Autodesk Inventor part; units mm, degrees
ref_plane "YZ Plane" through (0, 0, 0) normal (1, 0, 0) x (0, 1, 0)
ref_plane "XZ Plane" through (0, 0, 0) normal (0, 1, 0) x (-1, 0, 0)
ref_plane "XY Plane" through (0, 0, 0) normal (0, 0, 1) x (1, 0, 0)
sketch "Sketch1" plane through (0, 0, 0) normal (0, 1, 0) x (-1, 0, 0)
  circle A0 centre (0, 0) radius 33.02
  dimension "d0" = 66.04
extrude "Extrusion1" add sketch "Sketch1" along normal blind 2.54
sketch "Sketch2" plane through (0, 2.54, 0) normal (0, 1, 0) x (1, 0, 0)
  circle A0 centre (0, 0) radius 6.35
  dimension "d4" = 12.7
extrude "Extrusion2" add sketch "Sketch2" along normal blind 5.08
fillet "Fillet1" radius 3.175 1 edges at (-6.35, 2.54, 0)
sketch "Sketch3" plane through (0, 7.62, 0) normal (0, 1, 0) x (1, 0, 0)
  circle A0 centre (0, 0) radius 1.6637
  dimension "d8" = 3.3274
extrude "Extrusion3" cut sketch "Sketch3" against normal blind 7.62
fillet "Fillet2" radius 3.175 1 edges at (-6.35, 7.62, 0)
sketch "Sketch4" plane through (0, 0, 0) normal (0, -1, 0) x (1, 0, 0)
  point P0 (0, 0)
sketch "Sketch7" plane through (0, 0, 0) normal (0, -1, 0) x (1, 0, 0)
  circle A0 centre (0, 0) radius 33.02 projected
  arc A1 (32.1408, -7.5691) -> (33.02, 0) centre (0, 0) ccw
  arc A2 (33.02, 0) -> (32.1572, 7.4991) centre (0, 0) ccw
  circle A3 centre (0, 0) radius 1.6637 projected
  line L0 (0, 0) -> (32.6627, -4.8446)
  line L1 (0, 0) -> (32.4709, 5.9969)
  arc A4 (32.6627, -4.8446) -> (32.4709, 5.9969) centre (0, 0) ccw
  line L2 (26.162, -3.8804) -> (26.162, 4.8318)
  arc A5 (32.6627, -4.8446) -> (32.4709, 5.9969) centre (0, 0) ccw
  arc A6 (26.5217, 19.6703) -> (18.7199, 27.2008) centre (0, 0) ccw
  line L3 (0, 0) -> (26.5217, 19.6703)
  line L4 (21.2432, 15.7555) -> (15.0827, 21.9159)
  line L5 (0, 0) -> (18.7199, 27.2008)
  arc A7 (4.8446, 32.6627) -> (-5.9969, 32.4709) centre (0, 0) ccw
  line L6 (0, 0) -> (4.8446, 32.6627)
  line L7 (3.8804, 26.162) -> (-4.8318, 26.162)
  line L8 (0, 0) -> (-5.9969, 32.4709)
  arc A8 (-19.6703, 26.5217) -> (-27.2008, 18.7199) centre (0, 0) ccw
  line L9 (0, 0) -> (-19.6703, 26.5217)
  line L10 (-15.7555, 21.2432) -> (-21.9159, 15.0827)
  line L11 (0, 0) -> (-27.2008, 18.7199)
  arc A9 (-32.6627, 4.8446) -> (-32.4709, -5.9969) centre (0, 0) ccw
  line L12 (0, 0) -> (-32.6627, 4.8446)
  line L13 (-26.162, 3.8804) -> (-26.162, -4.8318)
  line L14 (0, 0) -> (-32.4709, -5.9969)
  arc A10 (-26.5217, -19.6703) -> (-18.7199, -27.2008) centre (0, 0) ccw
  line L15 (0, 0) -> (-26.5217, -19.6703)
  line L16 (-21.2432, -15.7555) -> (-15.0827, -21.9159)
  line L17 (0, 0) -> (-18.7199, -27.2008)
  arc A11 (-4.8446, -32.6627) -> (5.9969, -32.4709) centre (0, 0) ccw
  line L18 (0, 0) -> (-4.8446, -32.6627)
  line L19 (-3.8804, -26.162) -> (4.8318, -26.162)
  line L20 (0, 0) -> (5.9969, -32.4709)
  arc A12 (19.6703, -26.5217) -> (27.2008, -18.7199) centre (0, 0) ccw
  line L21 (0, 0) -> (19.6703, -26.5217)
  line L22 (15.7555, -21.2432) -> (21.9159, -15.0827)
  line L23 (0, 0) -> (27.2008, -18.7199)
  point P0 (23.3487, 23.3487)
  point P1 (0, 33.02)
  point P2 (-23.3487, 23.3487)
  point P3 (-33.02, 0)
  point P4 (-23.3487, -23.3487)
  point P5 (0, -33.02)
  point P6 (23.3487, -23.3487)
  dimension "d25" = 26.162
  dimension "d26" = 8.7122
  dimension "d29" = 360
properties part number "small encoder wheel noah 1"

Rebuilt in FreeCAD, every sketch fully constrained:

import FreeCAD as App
import Part
import Sketcher
from FreeCAD import Vector
Q = App.Units.Quantity


def edges_at(feature, points):
    """Names of the edges that pass closest to the given points."""
    edges = feature.Shape.Edges
    near = lambda p: min(range(len(edges)), key=lambda i: edges[i].distToShape(Part.Vertex(*p))[0])
    return sorted({f"Edge{near(p) + 1}" for p in points})

doc = App.newDocument("Part")
params = doc.addObject("Spreadsheet::Sheet", "Params")
for row, (alias, value) in enumerate([
    ("sketch1_diameter", "2.6 in"),
    ("pad1_length", "0.1 in"),
    ("sketch2_diameter", "0.5 in"),
    ("pad2_length", "0.2 in"),
    ("fillet_radius", "0.125 in"),
    ("sketch3_diameter", "0.131 in"),
    ("pocket1_length", "0.3 in"),
    ("fillet2_radius", "0.125 in"),
], start=1):
    params.set(f"A{row}", alias)
    params.set(f"B{row}", "=" + value)
    params.setAlias(f"B{row}", alias)

body = doc.addObject("PartDesign::Body", "Body")

# Sketch on XZ plane
sketch1 = body.newObject("Sketcher::SketchObject", "Sketch")
sketch1.AttachmentSupport = (doc.getObject("XZ_Plane"), [""])
sketch1.MapMode = "FlatFace"
sketch1.addGeometry(Part.Circle(Vector(0, 0, 0), Vector(0, 0, 1), 33.02), False)
sketch1.addConstraint([
    Sketcher.Constraint("Coincident", 0, 3, -1, 1),
    Sketcher.Constraint("Diameter", 0, Q("2.6 in")),
])
sketch1.setExpression("Constraints[1]", "Params.sketch1_diameter")
pad1 = body.newObject("PartDesign::Pad", "Pad")
pad1.Profile = sketch1
pad1.setExpression("Length", "Params.pad1_length")
pad1.Reversed = True

# Sketch on XZ plane
sketch2 = body.newObject("Sketcher::SketchObject", "Sketch001")
sketch2.AttachmentSupport = (doc.getObject("XZ_Plane"), [""])
sketch2.MapMode = "FlatFace"
sketch2.AttachmentOffset = App.Placement(Vector(0, 0, -0.1 * 25.4), App.Rotation())
sketch2.addGeometry(Part.Circle(Vector(0, 0, 0), Vector(0, 0, 1), 6.35), False)
sketch2.addConstraint([
    Sketcher.Constraint("Coincident", 0, 3, -1, 1),
    Sketcher.Constraint("Diameter", 0, Q("0.5 in")),
])
sketch2.setExpression("Constraints[1]", "Params.sketch2_diameter")
pad2 = body.newObject("PartDesign::Pad", "Pad001")
pad2.Profile = sketch2
pad2.setExpression("Length", "Params.pad2_length")
pad2.Reversed = True
doc.recompute()

fillet = body.newObject("PartDesign::Fillet", "Fillet")
fillet.Base = (pad2, edges_at(pad2, [(-6.35, 2.54, 0)]))
fillet.setExpression("Radius", "Params.fillet_radius")

# Sketch on XZ plane
sketch3 = body.newObject("Sketcher::SketchObject", "Sketch002")
sketch3.AttachmentSupport = (doc.getObject("XZ_Plane"), [""])
sketch3.MapMode = "FlatFace"
sketch3.AttachmentOffset = App.Placement(Vector(0, 0, -0.3 * 25.4), App.Rotation())
sketch3.addGeometry(Part.Circle(Vector(0, 0, 0), Vector(0, 0, 1), 1.6637), False)
sketch3.addConstraint([
    Sketcher.Constraint("Coincident", 0, 3, -1, 1),
    Sketcher.Constraint("Diameter", 0, Q("0.131 in")),
])
sketch3.setExpression("Constraints[1]", "Params.sketch3_diameter")
pocket1 = body.newObject("PartDesign::Pocket", "Pocket")
pocket1.Profile = sketch3
pocket1.setExpression("Length", "Params.pocket1_length")
pocket1.Reversed = True
doc.recompute()

fillet2 = body.newObject("PartDesign::Fillet", "Fillet001")
fillet2.Base = (pocket1, edges_at(pocket1, [(-6.35, 7.62, 0)]))
fillet2.setExpression("Radius", "Params.fillet2_radius")

doc.recompute()
